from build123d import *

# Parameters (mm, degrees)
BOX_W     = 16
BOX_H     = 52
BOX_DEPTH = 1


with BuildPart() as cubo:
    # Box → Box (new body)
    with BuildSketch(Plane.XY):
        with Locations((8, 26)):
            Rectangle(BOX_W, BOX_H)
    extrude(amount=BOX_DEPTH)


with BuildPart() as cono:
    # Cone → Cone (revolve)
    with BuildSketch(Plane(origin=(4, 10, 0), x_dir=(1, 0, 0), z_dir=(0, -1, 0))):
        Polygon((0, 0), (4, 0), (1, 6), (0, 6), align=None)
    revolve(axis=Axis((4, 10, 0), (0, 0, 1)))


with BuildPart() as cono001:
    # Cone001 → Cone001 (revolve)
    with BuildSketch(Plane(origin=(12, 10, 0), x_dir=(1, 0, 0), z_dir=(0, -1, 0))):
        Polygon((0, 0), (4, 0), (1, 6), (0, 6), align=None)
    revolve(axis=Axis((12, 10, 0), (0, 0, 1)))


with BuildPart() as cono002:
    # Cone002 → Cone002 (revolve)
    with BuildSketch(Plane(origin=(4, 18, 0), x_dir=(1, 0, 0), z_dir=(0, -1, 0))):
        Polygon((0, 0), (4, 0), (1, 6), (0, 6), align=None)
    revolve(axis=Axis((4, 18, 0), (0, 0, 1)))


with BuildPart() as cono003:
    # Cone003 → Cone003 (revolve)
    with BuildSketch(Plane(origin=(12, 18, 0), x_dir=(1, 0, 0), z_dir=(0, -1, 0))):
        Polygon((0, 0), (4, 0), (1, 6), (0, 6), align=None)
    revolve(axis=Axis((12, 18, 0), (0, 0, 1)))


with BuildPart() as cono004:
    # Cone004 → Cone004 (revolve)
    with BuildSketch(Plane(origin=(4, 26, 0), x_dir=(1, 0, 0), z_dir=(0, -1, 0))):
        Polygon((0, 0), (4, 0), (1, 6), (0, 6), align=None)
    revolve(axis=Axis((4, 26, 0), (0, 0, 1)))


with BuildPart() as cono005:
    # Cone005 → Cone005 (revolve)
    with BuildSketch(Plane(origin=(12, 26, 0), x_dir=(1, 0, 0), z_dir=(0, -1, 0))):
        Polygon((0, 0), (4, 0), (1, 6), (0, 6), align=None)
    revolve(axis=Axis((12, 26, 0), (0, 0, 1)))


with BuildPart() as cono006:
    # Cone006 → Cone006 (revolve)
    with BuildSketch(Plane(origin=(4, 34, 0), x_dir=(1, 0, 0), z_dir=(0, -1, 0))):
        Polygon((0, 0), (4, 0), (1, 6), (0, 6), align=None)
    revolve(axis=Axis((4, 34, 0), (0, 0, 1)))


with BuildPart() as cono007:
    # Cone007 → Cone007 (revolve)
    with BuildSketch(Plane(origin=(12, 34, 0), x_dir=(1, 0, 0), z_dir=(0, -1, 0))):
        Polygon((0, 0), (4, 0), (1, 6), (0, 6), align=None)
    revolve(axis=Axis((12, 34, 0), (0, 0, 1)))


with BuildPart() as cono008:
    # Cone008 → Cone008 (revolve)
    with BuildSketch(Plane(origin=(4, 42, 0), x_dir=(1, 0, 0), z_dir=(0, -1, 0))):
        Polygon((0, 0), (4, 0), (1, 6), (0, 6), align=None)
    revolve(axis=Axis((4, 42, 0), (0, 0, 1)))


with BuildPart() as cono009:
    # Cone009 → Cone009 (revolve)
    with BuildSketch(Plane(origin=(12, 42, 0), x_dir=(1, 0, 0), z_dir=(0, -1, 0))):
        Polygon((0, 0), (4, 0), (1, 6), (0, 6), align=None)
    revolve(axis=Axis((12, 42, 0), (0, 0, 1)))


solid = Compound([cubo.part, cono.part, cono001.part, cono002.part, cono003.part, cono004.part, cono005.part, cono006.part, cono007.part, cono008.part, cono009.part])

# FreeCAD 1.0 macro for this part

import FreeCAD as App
import Part
import Sketcher

V = App.Vector

doc = App.newDocument("Part")
body = doc.addObject("PartDesign::Body", "Body")

# Sketch on XY plane
sketch1 = body.newObject("Sketcher::SketchObject", "Sketch")
sketch1.AttachmentSupport = (doc.getObject("XY_Plane"), [""])
sketch1.MapMode = "FlatFace"
sketch1.addGeometry(Part.LineSegment(V(0, 52, 0), V(0, 0, 0)), False)
sketch1.addGeometry(Part.LineSegment(V(0, 0, 0), V(16, 0, 0)), False)
sketch1.addGeometry(Part.LineSegment(V(16, 0, 0), V(16, 52, 0)), False)
sketch1.addGeometry(Part.LineSegment(V(16, 52, 0), V(0, 52, 0)), False)
sketch1.addConstraint(Sketcher.Constraint("Coincident", 0, 2, 1, 1))
sketch1.addConstraint(Sketcher.Constraint("Coincident", 1, 2, 2, 1))
sketch1.addConstraint(Sketcher.Constraint("Coincident", 2, 2, 3, 1))
sketch1.addConstraint(Sketcher.Constraint("Coincident", 3, 2, 0, 1))
sketch1.addConstraint(Sketcher.Constraint("Vertical", 0))
sketch1.addConstraint(Sketcher.Constraint("Horizontal", 1))
sketch1.addConstraint(Sketcher.Constraint("Vertical", 2))
sketch1.addConstraint(Sketcher.Constraint("Horizontal", 3))
sketch1.addConstraint(Sketcher.Constraint("Coincident", 0, 2, -1, 1))
sketch1.addConstraint(Sketcher.Constraint("DistanceX", 1, 1, 1, 2, 16.0))
sketch1.addConstraint(Sketcher.Constraint("DistanceY", 0, 2, 0, 1, 52.0))
pad1 = body.newObject("PartDesign::Pad", "Pad")
pad1.Profile = sketch1
pad1.Length = 1
body2 = doc.addObject("PartDesign::Body", "Body001")

# Sketch on XZ plane
sketch2 = body2.newObject("Sketcher::SketchObject", "Sketch001")
sketch2.AttachmentSupport = (doc.getObject("XZ_Plane001"), [""])
sketch2.MapMode = "FlatFace"
sketch2.AttachmentOffset = App.Placement(V(0, 0, -10), App.Rotation())
sketch2.addGeometry(Part.LineSegment(V(4, 0, 0), V(8, 0, 0)), False)
sketch2.addGeometry(Part.LineSegment(V(8, 0, 0), V(5, 6, 0)), False)
sketch2.addGeometry(Part.LineSegment(V(5, 6, 0), V(4, 6, 0)), False)
sketch2.addGeometry(Part.LineSegment(V(4, 6, 0), V(4, 0, 0)), False)
sketch2.addGeometry(Part.LineSegment(V(4, 0, 0), V(4, 6, 0)), True)  # axis
sketch2.addConstraint(Sketcher.Constraint("Coincident", 0, 2, 1, 1))
sketch2.addConstraint(Sketcher.Constraint("Coincident", 1, 2, 2, 1))
sketch2.addConstraint(Sketcher.Constraint("Coincident", 2, 2, 3, 1))
sketch2.addConstraint(Sketcher.Constraint("Coincident", 3, 2, 0, 1))
sketch2.addConstraint(Sketcher.Constraint("Horizontal", 0))
sketch2.addConstraint(Sketcher.Constraint("Horizontal", 2))
sketch2.addConstraint(Sketcher.Constraint("Vertical", 3))
sketch2.addConstraint(Sketcher.Constraint("Vertical", 4))
sketch2.addConstraint(Sketcher.Constraint("Coincident", 4, 1, 3, 2))
sketch2.addConstraint(Sketcher.Constraint("PointOnObject", 0, 2, -1))
sketch2.addConstraint(Sketcher.Constraint("Horizontal", 1, 2, 4, 2))
sketch2.addConstraint(Sketcher.Constraint("DistanceX", 0, 1, 0, 2, 4.0))
sketch2.addConstraint(Sketcher.Constraint("DistanceX", 2, 2, 2, 1, 1.0))
sketch2.addConstraint(Sketcher.Constraint("DistanceY", 3, 2, 3, 1, 6.0))
sketch2.addConstraint(Sketcher.Constraint("DistanceX", -1, 1, 0, 2, 8.0))
revolution = body2.newObject("PartDesign::Revolution", "Revolution")
revolution.Profile = sketch2
revolution.ReferenceAxis = (sketch2, ["Axis0"])
revolution.Angle = 360
body3 = doc.addObject("PartDesign::Body", "Body002")

# Sketch on XZ plane
sketch3 = body3.newObject("Sketcher::SketchObject", "Sketch002")
sketch3.AttachmentSupport = (doc.getObject("XZ_Plane002"), [""])
sketch3.MapMode = "FlatFace"
sketch3.AttachmentOffset = App.Placement(V(0, 0, -10), App.Rotation())
sketch3.addGeometry(Part.LineSegment(V(12, 0, 0), V(16, 0, 0)), False)
sketch3.addGeometry(Part.LineSegment(V(16, 0, 0), V(13, 6, 0)), False)
sketch3.addGeometry(Part.LineSegment(V(13, 6, 0), V(12, 6, 0)), False)
sketch3.addGeometry(Part.LineSegment(V(12, 6, 0), V(12, 0, 0)), False)
sketch3.addGeometry(Part.LineSegment(V(12, 0, 0), V(12, 6, 0)), True)  # axis
sketch3.addConstraint(Sketcher.Constraint("Coincident", 0, 2, 1, 1))
sketch3.addConstraint(Sketcher.Constraint("Coincident", 1, 2, 2, 1))
sketch3.addConstraint(Sketcher.Constraint("Coincident", 2, 2, 3, 1))
sketch3.addConstraint(Sketcher.Constraint("Coincident", 3, 2, 0, 1))
sketch3.addConstraint(Sketcher.Constraint("Horizontal", 0))
sketch3.addConstraint(Sketcher.Constraint("Horizontal", 2))
sketch3.addConstraint(Sketcher.Constraint("Vertical", 3))
sketch3.addConstraint(Sketcher.Constraint("Vertical", 4))
sketch3.addConstraint(Sketcher.Constraint("Coincident", 4, 1, 3, 2))
sketch3.addConstraint(Sketcher.Constraint("PointOnObject", 0, 2, -1))
sketch3.addConstraint(Sketcher.Constraint("Horizontal", 1, 2, 4, 2))
sketch3.addConstraint(Sketcher.Constraint("DistanceX", 0, 1, 0, 2, 4.0))
sketch3.addConstraint(Sketcher.Constraint("DistanceX", 2, 2, 2, 1, 1.0))
sketch3.addConstraint(Sketcher.Constraint("DistanceY", 3, 2, 3, 1, 6.0))
sketch3.addConstraint(Sketcher.Constraint("DistanceX", -1, 1, 0, 2, 16.0))
revolution2 = body3.newObject("PartDesign::Revolution", "Revolution001")
revolution2.Profile = sketch3
revolution2.ReferenceAxis = (sketch3, ["Axis0"])
revolution2.Angle = 360
body4 = doc.addObject("PartDesign::Body", "Body003")

# Sketch on XZ plane
sketch4 = body4.newObject("Sketcher::SketchObject", "Sketch003")
sketch4.AttachmentSupport = (doc.getObject("XZ_Plane003"), [""])
sketch4.MapMode = "FlatFace"
sketch4.AttachmentOffset = App.Placement(V(0, 0, -18), App.Rotation())
sketch4.addGeometry(Part.LineSegment(V(4, 0, 0), V(8, 0, 0)), False)
sketch4.addGeometry(Part.LineSegment(V(8, 0, 0), V(5, 6, 0)), False)
sketch4.addGeometry(Part.LineSegment(V(5, 6, 0), V(4, 6, 0)), False)
sketch4.addGeometry(Part.LineSegment(V(4, 6, 0), V(4, 0, 0)), False)
sketch4.addGeometry(Part.LineSegment(V(4, 0, 0), V(4, 6, 0)), True)  # axis
sketch4.addConstraint(Sketcher.Constraint("Coincident", 0, 2, 1, 1))
sketch4.addConstraint(Sketcher.Constraint("Coincident", 1, 2, 2, 1))
sketch4.addConstraint(Sketcher.Constraint("Coincident", 2, 2, 3, 1))
sketch4.addConstraint(Sketcher.Constraint("Coincident", 3, 2, 0, 1))
sketch4.addConstraint(Sketcher.Constraint("Horizontal", 0))
sketch4.addConstraint(Sketcher.Constraint("Horizontal", 2))
sketch4.addConstraint(Sketcher.Constraint("Vertical", 3))
sketch4.addConstraint(Sketcher.Constraint("Vertical", 4))
sketch4.addConstraint(Sketcher.Constraint("Coincident", 4, 1, 3, 2))
sketch4.addConstraint(Sketcher.Constraint("PointOnObject", 0, 2, -1))
sketch4.addConstraint(Sketcher.Constraint("Horizontal", 1, 2, 4, 2))
sketch4.addConstraint(Sketcher.Constraint("DistanceX", 0, 1, 0, 2, 4.0))
sketch4.addConstraint(Sketcher.Constraint("DistanceX", 2, 2, 2, 1, 1.0))
sketch4.addConstraint(Sketcher.Constraint("DistanceY", 3, 2, 3, 1, 6.0))
sketch4.addConstraint(Sketcher.Constraint("DistanceX", -1, 1, 0, 2, 8.0))
revolution3 = body4.newObject("PartDesign::Revolution", "Revolution002")
revolution3.Profile = sketch4
revolution3.ReferenceAxis = (sketch4, ["Axis0"])
revolution3.Angle = 360
body5 = doc.addObject("PartDesign::Body", "Body004")

# Sketch on XZ plane
sketch5 = body5.newObject("Sketcher::SketchObject", "Sketch004")
sketch5.AttachmentSupport = (doc.getObject("XZ_Plane004"), [""])
sketch5.MapMode = "FlatFace"
sketch5.AttachmentOffset = App.Placement(V(0, 0, -18), App.Rotation())
sketch5.addGeometry(Part.LineSegment(V(12, 0, 0), V(16, 0, 0)), False)
sketch5.addGeometry(Part.LineSegment(V(16, 0, 0), V(13, 6, 0)), False)
sketch5.addGeometry(Part.LineSegment(V(13, 6, 0), V(12, 6, 0)), False)
sketch5.addGeometry(Part.LineSegment(V(12, 6, 0), V(12, 0, 0)), False)
sketch5.addGeometry(Part.LineSegment(V(12, 0, 0), V(12, 6, 0)), True)  # axis
sketch5.addConstraint(Sketcher.Constraint("Coincident", 0, 2, 1, 1))
sketch5.addConstraint(Sketcher.Constraint("Coincident", 1, 2, 2, 1))
sketch5.addConstraint(Sketcher.Constraint("Coincident", 2, 2, 3, 1))
sketch5.addConstraint(Sketcher.Constraint("Coincident", 3, 2, 0, 1))
sketch5.addConstraint(Sketcher.Constraint("Horizontal", 0))
sketch5.addConstraint(Sketcher.Constraint("Horizontal", 2))
sketch5.addConstraint(Sketcher.Constraint("Vertical", 3))
sketch5.addConstraint(Sketcher.Constraint("Vertical", 4))
sketch5.addConstraint(Sketcher.Constraint("Coincident", 4, 1, 3, 2))
sketch5.addConstraint(Sketcher.Constraint("PointOnObject", 0, 2, -1))
sketch5.addConstraint(Sketcher.Constraint("Horizontal", 1, 2, 4, 2))
sketch5.addConstraint(Sketcher.Constraint("DistanceX", 0, 1, 0, 2, 4.0))
sketch5.addConstraint(Sketcher.Constraint("DistanceX", 2, 2, 2, 1, 1.0))
sketch5.addConstraint(Sketcher.Constraint("DistanceY", 3, 2, 3, 1, 6.0))
sketch5.addConstraint(Sketcher.Constraint("DistanceX", -1, 1, 0, 2, 16.0))
revolution4 = body5.newObject("PartDesign::Revolution", "Revolution003")
revolution4.Profile = sketch5
revolution4.ReferenceAxis = (sketch5, ["Axis0"])
revolution4.Angle = 360
body6 = doc.addObject("PartDesign::Body", "Body005")

# Sketch on XZ plane
sketch6 = body6.newObject("Sketcher::SketchObject", "Sketch005")
sketch6.AttachmentSupport = (doc.getObject("XZ_Plane005"), [""])
sketch6.MapMode = "FlatFace"
sketch6.AttachmentOffset = App.Placement(V(0, 0, -26), App.Rotation())
sketch6.addGeometry(Part.LineSegment(V(4, 0, 0), V(8, 0, 0)), False)
sketch6.addGeometry(Part.LineSegment(V(8, 0, 0), V(5, 6, 0)), False)
sketch6.addGeometry(Part.LineSegment(V(5, 6, 0), V(4, 6, 0)), False)
sketch6.addGeometry(Part.LineSegment(V(4, 6, 0), V(4, 0, 0)), False)
sketch6.addGeometry(Part.LineSegment(V(4, 0, 0), V(4, 6, 0)), True)  # axis
sketch6.addConstraint(Sketcher.Constraint("Coincident", 0, 2, 1, 1))
sketch6.addConstraint(Sketcher.Constraint("Coincident", 1, 2, 2, 1))
sketch6.addConstraint(Sketcher.Constraint("Coincident", 2, 2, 3, 1))
sketch6.addConstraint(Sketcher.Constraint("Coincident", 3, 2, 0, 1))
sketch6.addConstraint(Sketcher.Constraint("Horizontal", 0))
sketch6.addConstraint(Sketcher.Constraint("Horizontal", 2))
sketch6.addConstraint(Sketcher.Constraint("Vertical", 3))
sketch6.addConstraint(Sketcher.Constraint("Vertical", 4))
sketch6.addConstraint(Sketcher.Constraint("Coincident", 4, 1, 3, 2))
sketch6.addConstraint(Sketcher.Constraint("PointOnObject", 0, 2, -1))
sketch6.addConstraint(Sketcher.Constraint("Horizontal", 1, 2, 4, 2))
sketch6.addConstraint(Sketcher.Constraint("DistanceX", 0, 1, 0, 2, 4.0))
sketch6.addConstraint(Sketcher.Constraint("DistanceX", 2, 2, 2, 1, 1.0))
sketch6.addConstraint(Sketcher.Constraint("DistanceY", 3, 2, 3, 1, 6.0))
sketch6.addConstraint(Sketcher.Constraint("DistanceX", -1, 1, 0, 2, 8.0))
revolution5 = body6.newObject("PartDesign::Revolution", "Revolution004")
revolution5.Profile = sketch6
revolution5.ReferenceAxis = (sketch6, ["Axis0"])
revolution5.Angle = 360
body7 = doc.addObject("PartDesign::Body", "Body006")

# Sketch on XZ plane
sketch7 = body7.newObject("Sketcher::SketchObject", "Sketch006")
sketch7.AttachmentSupport = (doc.getObject("XZ_Plane006"), [""])
sketch7.MapMode = "FlatFace"
sketch7.AttachmentOffset = App.Placement(V(0, 0, -26), App.Rotation())
sketch7.addGeometry(Part.LineSegment(V(12, 0, 0), V(16, 0, 0)), False)
sketch7.addGeometry(Part.LineSegment(V(16, 0, 0), V(13, 6, 0)), False)
sketch7.addGeometry(Part.LineSegment(V(13, 6, 0), V(12, 6, 0)), False)
sketch7.addGeometry(Part.LineSegment(V(12, 6, 0), V(12, 0, 0)), False)
sketch7.addGeometry(Part.LineSegment(V(12, 0, 0), V(12, 6, 0)), True)  # axis
sketch7.addConstraint(Sketcher.Constraint("Coincident", 0, 2, 1, 1))
sketch7.addConstraint(Sketcher.Constraint("Coincident", 1, 2, 2, 1))
sketch7.addConstraint(Sketcher.Constraint("Coincident", 2, 2, 3, 1))
sketch7.addConstraint(Sketcher.Constraint("Coincident", 3, 2, 0, 1))
sketch7.addConstraint(Sketcher.Constraint("Horizontal", 0))
sketch7.addConstraint(Sketcher.Constraint("Horizontal", 2))
sketch7.addConstraint(Sketcher.Constraint("Vertical", 3))
sketch7.addConstraint(Sketcher.Constraint("Vertical", 4))
sketch7.addConstraint(Sketcher.Constraint("Coincident", 4, 1, 3, 2))
sketch7.addConstraint(Sketcher.Constraint("PointOnObject", 0, 2, -1))
sketch7.addConstraint(Sketcher.Constraint("Horizontal", 1, 2, 4, 2))
sketch7.addConstraint(Sketcher.Constraint("DistanceX", 0, 1, 0, 2, 4.0))
sketch7.addConstraint(Sketcher.Constraint("DistanceX", 2, 2, 2, 1, 1.0))
sketch7.addConstraint(Sketcher.Constraint("DistanceY", 3, 2, 3, 1, 6.0))
sketch7.addConstraint(Sketcher.Constraint("DistanceX", -1, 1, 0, 2, 16.0))
revolution6 = body7.newObject("PartDesign::Revolution", "Revolution005")
revolution6.Profile = sketch7
revolution6.ReferenceAxis = (sketch7, ["Axis0"])
revolution6.Angle = 360
body8 = doc.addObject("PartDesign::Body", "Body007")

# Sketch on XZ plane
sketch8 = body8.newObject("Sketcher::SketchObject", "Sketch007")
sketch8.AttachmentSupport = (doc.getObject("XZ_Plane007"), [""])
sketch8.MapMode = "FlatFace"
sketch8.AttachmentOffset = App.Placement(V(0, 0, -34), App.Rotation())
sketch8.addGeometry(Part.LineSegment(V(4, 0, 0), V(8, 0, 0)), False)
sketch8.addGeometry(Part.LineSegment(V(8, 0, 0), V(5, 6, 0)), False)
sketch8.addGeometry(Part.LineSegment(V(5, 6, 0), V(4, 6, 0)), False)
sketch8.addGeometry(Part.LineSegment(V(4, 6, 0), V(4, 0, 0)), False)
sketch8.addGeometry(Part.LineSegment(V(4, 0, 0), V(4, 6, 0)), True)  # axis
sketch8.addConstraint(Sketcher.Constraint("Coincident", 0, 2, 1, 1))
sketch8.addConstraint(Sketcher.Constraint("Coincident", 1, 2, 2, 1))
sketch8.addConstraint(Sketcher.Constraint("Coincident", 2, 2, 3, 1))
sketch8.addConstraint(Sketcher.Constraint("Coincident", 3, 2, 0, 1))
sketch8.addConstraint(Sketcher.Constraint("Horizontal", 0))
sketch8.addConstraint(Sketcher.Constraint("Horizontal", 2))
sketch8.addConstraint(Sketcher.Constraint("Vertical", 3))
sketch8.addConstraint(Sketcher.Constraint("Vertical", 4))
sketch8.addConstraint(Sketcher.Constraint("Coincident", 4, 1, 3, 2))
sketch8.addConstraint(Sketcher.Constraint("PointOnObject", 0, 2, -1))
sketch8.addConstraint(Sketcher.Constraint("Horizontal", 1, 2, 4, 2))
sketch8.addConstraint(Sketcher.Constraint("DistanceX", 0, 1, 0, 2, 4.0))
sketch8.addConstraint(Sketcher.Constraint("DistanceX", 2, 2, 2, 1, 1.0))
sketch8.addConstraint(Sketcher.Constraint("DistanceY", 3, 2, 3, 1, 6.0))
sketch8.addConstraint(Sketcher.Constraint("DistanceX", -1, 1, 0, 2, 8.0))
revolution7 = body8.newObject("PartDesign::Revolution", "Revolution006")
revolution7.Profile = sketch8
revolution7.ReferenceAxis = (sketch8, ["Axis0"])
revolution7.Angle = 360
body9 = doc.addObject("PartDesign::Body", "Body008")

# Sketch on XZ plane
sketch9 = body9.newObject("Sketcher::SketchObject", "Sketch008")
sketch9.AttachmentSupport = (doc.getObject("XZ_Plane008"), [""])
sketch9.MapMode = "FlatFace"
sketch9.AttachmentOffset = App.Placement(V(0, 0, -34), App.Rotation())
sketch9.addGeometry(Part.LineSegment(V(12, 0, 0), V(16, 0, 0)), False)
sketch9.addGeometry(Part.LineSegment(V(16, 0, 0), V(13, 6, 0)), False)
sketch9.addGeometry(Part.LineSegment(V(13, 6, 0), V(12, 6, 0)), False)
sketch9.addGeometry(Part.LineSegment(V(12, 6, 0), V(12, 0, 0)), False)
sketch9.addGeometry(Part.LineSegment(V(12, 0, 0), V(12, 6, 0)), True)  # axis
sketch9.addConstraint(Sketcher.Constraint("Coincident", 0, 2, 1, 1))
sketch9.addConstraint(Sketcher.Constraint("Coincident", 1, 2, 2, 1))
sketch9.addConstraint(Sketcher.Constraint("Coincident", 2, 2, 3, 1))
sketch9.addConstraint(Sketcher.Constraint("Coincident", 3, 2, 0, 1))
sketch9.addConstraint(Sketcher.Constraint("Horizontal", 0))
sketch9.addConstraint(Sketcher.Constraint("Horizontal", 2))
sketch9.addConstraint(Sketcher.Constraint("Vertical", 3))
sketch9.addConstraint(Sketcher.Constraint("Vertical", 4))
sketch9.addConstraint(Sketcher.Constraint("Coincident", 4, 1, 3, 2))
sketch9.addConstraint(Sketcher.Constraint("PointOnObject", 0, 2, -1))
sketch9.addConstraint(Sketcher.Constraint("Horizontal", 1, 2, 4, 2))
sketch9.addConstraint(Sketcher.Constraint("DistanceX", 0, 1, 0, 2, 4.0))
sketch9.addConstraint(Sketcher.Constraint("DistanceX", 2, 2, 2, 1, 1.0))
sketch9.addConstraint(Sketcher.Constraint("DistanceY", 3, 2, 3, 1, 6.0))
sketch9.addConstraint(Sketcher.Constraint("DistanceX", -1, 1, 0, 2, 16.0))
revolution8 = body9.newObject("PartDesign::Revolution", "Revolution007")
revolution8.Profile = sketch9
revolution8.ReferenceAxis = (sketch9, ["Axis0"])
revolution8.Angle = 360
body10 = doc.addObject("PartDesign::Body", "Body009")

# Sketch on XZ plane
sketch10 = body10.newObject("Sketcher::SketchObject", "Sketch009")
sketch10.AttachmentSupport = (doc.getObject("XZ_Plane009"), [""])
sketch10.MapMode = "FlatFace"
sketch10.AttachmentOffset = App.Placement(V(0, 0, -42), App.Rotation())
sketch10.addGeometry(Part.LineSegment(V(4, 0, 0), V(8, 0, 0)), False)
sketch10.addGeometry(Part.LineSegment(V(8, 0, 0), V(5, 6, 0)), False)
sketch10.addGeometry(Part.LineSegment(V(5, 6, 0), V(4, 6, 0)), False)
sketch10.addGeometry(Part.LineSegment(V(4, 6, 0), V(4, 0, 0)), False)
sketch10.addGeometry(Part.LineSegment(V(4, 0, 0), V(4, 6, 0)), True)  # axis
sketch10.addConstraint(Sketcher.Constraint("Coincident", 0, 2, 1, 1))
sketch10.addConstraint(Sketcher.Constraint("Coincident", 1, 2, 2, 1))
sketch10.addConstraint(Sketcher.Constraint("Coincident", 2, 2, 3, 1))
sketch10.addConstraint(Sketcher.Constraint("Coincident", 3, 2, 0, 1))
sketch10.addConstraint(Sketcher.Constraint("Horizontal", 0))
sketch10.addConstraint(Sketcher.Constraint("Horizontal", 2))
sketch10.addConstraint(Sketcher.Constraint("Vertical", 3))
sketch10.addConstraint(Sketcher.Constraint("Vertical", 4))
sketch10.addConstraint(Sketcher.Constraint("Coincident", 4, 1, 3, 2))
sketch10.addConstraint(Sketcher.Constraint("PointOnObject", 0, 2, -1))
sketch10.addConstraint(Sketcher.Constraint("Horizontal", 1, 2, 4, 2))
sketch10.addConstraint(Sketcher.Constraint("DistanceX", 0, 1, 0, 2, 4.0))
sketch10.addConstraint(Sketcher.Constraint("DistanceX", 2, 2, 2, 1, 1.0))
sketch10.addConstraint(Sketcher.Constraint("DistanceY", 3, 2, 3, 1, 6.0))
sketch10.addConstraint(Sketcher.Constraint("DistanceX", -1, 1, 0, 2, 8.0))
revolution9 = body10.newObject("PartDesign::Revolution", "Revolution008")
revolution9.Profile = sketch10
revolution9.ReferenceAxis = (sketch10, ["Axis0"])
revolution9.Angle = 360
body11 = doc.addObject("PartDesign::Body", "Body010")

# Sketch on XZ plane
sketch11 = body11.newObject("Sketcher::SketchObject", "Sketch010")
sketch11.AttachmentSupport = (doc.getObject("XZ_Plane010"), [""])
sketch11.MapMode = "FlatFace"
sketch11.AttachmentOffset = App.Placement(V(0, 0, -42), App.Rotation())
sketch11.addGeometry(Part.LineSegment(V(12, 0, 0), V(16, 0, 0)), False)
sketch11.addGeometry(Part.LineSegment(V(16, 0, 0), V(13, 6, 0)), False)
sketch11.addGeometry(Part.LineSegment(V(13, 6, 0), V(12, 6, 0)), False)
sketch11.addGeometry(Part.LineSegment(V(12, 6, 0), V(12, 0, 0)), False)
sketch11.addGeometry(Part.LineSegment(V(12, 0, 0), V(12, 6, 0)), True)  # axis
sketch11.addConstraint(Sketcher.Constraint("Coincident", 0, 2, 1, 1))
sketch11.addConstraint(Sketcher.Constraint("Coincident", 1, 2, 2, 1))
sketch11.addConstraint(Sketcher.Constraint("Coincident", 2, 2, 3, 1))
sketch11.addConstraint(Sketcher.Constraint("Coincident", 3, 2, 0, 1))
sketch11.addConstraint(Sketcher.Constraint("Horizontal", 0))
sketch11.addConstraint(Sketcher.Constraint("Horizontal", 2))
sketch11.addConstraint(Sketcher.Constraint("Vertical", 3))
sketch11.addConstraint(Sketcher.Constraint("Vertical", 4))
sketch11.addConstraint(Sketcher.Constraint("Coincident", 4, 1, 3, 2))
sketch11.addConstraint(Sketcher.Constraint("PointOnObject", 0, 2, -1))
sketch11.addConstraint(Sketcher.Constraint("Horizontal", 1, 2, 4, 2))
sketch11.addConstraint(Sketcher.Constraint("DistanceX", 0, 1, 0, 2, 4.0))
sketch11.addConstraint(Sketcher.Constraint("DistanceX", 2, 2, 2, 1, 1.0))
sketch11.addConstraint(Sketcher.Constraint("DistanceY", 3, 2, 3, 1, 6.0))
sketch11.addConstraint(Sketcher.Constraint("DistanceX", -1, 1, 0, 2, 16.0))
revolution10 = body11.newObject("PartDesign::Revolution", "Revolution009")
revolution10.Profile = sketch11
revolution10.ReferenceAxis = (sketch11, ["Axis0"])
revolution10.Angle = 360

doc.recompute()
